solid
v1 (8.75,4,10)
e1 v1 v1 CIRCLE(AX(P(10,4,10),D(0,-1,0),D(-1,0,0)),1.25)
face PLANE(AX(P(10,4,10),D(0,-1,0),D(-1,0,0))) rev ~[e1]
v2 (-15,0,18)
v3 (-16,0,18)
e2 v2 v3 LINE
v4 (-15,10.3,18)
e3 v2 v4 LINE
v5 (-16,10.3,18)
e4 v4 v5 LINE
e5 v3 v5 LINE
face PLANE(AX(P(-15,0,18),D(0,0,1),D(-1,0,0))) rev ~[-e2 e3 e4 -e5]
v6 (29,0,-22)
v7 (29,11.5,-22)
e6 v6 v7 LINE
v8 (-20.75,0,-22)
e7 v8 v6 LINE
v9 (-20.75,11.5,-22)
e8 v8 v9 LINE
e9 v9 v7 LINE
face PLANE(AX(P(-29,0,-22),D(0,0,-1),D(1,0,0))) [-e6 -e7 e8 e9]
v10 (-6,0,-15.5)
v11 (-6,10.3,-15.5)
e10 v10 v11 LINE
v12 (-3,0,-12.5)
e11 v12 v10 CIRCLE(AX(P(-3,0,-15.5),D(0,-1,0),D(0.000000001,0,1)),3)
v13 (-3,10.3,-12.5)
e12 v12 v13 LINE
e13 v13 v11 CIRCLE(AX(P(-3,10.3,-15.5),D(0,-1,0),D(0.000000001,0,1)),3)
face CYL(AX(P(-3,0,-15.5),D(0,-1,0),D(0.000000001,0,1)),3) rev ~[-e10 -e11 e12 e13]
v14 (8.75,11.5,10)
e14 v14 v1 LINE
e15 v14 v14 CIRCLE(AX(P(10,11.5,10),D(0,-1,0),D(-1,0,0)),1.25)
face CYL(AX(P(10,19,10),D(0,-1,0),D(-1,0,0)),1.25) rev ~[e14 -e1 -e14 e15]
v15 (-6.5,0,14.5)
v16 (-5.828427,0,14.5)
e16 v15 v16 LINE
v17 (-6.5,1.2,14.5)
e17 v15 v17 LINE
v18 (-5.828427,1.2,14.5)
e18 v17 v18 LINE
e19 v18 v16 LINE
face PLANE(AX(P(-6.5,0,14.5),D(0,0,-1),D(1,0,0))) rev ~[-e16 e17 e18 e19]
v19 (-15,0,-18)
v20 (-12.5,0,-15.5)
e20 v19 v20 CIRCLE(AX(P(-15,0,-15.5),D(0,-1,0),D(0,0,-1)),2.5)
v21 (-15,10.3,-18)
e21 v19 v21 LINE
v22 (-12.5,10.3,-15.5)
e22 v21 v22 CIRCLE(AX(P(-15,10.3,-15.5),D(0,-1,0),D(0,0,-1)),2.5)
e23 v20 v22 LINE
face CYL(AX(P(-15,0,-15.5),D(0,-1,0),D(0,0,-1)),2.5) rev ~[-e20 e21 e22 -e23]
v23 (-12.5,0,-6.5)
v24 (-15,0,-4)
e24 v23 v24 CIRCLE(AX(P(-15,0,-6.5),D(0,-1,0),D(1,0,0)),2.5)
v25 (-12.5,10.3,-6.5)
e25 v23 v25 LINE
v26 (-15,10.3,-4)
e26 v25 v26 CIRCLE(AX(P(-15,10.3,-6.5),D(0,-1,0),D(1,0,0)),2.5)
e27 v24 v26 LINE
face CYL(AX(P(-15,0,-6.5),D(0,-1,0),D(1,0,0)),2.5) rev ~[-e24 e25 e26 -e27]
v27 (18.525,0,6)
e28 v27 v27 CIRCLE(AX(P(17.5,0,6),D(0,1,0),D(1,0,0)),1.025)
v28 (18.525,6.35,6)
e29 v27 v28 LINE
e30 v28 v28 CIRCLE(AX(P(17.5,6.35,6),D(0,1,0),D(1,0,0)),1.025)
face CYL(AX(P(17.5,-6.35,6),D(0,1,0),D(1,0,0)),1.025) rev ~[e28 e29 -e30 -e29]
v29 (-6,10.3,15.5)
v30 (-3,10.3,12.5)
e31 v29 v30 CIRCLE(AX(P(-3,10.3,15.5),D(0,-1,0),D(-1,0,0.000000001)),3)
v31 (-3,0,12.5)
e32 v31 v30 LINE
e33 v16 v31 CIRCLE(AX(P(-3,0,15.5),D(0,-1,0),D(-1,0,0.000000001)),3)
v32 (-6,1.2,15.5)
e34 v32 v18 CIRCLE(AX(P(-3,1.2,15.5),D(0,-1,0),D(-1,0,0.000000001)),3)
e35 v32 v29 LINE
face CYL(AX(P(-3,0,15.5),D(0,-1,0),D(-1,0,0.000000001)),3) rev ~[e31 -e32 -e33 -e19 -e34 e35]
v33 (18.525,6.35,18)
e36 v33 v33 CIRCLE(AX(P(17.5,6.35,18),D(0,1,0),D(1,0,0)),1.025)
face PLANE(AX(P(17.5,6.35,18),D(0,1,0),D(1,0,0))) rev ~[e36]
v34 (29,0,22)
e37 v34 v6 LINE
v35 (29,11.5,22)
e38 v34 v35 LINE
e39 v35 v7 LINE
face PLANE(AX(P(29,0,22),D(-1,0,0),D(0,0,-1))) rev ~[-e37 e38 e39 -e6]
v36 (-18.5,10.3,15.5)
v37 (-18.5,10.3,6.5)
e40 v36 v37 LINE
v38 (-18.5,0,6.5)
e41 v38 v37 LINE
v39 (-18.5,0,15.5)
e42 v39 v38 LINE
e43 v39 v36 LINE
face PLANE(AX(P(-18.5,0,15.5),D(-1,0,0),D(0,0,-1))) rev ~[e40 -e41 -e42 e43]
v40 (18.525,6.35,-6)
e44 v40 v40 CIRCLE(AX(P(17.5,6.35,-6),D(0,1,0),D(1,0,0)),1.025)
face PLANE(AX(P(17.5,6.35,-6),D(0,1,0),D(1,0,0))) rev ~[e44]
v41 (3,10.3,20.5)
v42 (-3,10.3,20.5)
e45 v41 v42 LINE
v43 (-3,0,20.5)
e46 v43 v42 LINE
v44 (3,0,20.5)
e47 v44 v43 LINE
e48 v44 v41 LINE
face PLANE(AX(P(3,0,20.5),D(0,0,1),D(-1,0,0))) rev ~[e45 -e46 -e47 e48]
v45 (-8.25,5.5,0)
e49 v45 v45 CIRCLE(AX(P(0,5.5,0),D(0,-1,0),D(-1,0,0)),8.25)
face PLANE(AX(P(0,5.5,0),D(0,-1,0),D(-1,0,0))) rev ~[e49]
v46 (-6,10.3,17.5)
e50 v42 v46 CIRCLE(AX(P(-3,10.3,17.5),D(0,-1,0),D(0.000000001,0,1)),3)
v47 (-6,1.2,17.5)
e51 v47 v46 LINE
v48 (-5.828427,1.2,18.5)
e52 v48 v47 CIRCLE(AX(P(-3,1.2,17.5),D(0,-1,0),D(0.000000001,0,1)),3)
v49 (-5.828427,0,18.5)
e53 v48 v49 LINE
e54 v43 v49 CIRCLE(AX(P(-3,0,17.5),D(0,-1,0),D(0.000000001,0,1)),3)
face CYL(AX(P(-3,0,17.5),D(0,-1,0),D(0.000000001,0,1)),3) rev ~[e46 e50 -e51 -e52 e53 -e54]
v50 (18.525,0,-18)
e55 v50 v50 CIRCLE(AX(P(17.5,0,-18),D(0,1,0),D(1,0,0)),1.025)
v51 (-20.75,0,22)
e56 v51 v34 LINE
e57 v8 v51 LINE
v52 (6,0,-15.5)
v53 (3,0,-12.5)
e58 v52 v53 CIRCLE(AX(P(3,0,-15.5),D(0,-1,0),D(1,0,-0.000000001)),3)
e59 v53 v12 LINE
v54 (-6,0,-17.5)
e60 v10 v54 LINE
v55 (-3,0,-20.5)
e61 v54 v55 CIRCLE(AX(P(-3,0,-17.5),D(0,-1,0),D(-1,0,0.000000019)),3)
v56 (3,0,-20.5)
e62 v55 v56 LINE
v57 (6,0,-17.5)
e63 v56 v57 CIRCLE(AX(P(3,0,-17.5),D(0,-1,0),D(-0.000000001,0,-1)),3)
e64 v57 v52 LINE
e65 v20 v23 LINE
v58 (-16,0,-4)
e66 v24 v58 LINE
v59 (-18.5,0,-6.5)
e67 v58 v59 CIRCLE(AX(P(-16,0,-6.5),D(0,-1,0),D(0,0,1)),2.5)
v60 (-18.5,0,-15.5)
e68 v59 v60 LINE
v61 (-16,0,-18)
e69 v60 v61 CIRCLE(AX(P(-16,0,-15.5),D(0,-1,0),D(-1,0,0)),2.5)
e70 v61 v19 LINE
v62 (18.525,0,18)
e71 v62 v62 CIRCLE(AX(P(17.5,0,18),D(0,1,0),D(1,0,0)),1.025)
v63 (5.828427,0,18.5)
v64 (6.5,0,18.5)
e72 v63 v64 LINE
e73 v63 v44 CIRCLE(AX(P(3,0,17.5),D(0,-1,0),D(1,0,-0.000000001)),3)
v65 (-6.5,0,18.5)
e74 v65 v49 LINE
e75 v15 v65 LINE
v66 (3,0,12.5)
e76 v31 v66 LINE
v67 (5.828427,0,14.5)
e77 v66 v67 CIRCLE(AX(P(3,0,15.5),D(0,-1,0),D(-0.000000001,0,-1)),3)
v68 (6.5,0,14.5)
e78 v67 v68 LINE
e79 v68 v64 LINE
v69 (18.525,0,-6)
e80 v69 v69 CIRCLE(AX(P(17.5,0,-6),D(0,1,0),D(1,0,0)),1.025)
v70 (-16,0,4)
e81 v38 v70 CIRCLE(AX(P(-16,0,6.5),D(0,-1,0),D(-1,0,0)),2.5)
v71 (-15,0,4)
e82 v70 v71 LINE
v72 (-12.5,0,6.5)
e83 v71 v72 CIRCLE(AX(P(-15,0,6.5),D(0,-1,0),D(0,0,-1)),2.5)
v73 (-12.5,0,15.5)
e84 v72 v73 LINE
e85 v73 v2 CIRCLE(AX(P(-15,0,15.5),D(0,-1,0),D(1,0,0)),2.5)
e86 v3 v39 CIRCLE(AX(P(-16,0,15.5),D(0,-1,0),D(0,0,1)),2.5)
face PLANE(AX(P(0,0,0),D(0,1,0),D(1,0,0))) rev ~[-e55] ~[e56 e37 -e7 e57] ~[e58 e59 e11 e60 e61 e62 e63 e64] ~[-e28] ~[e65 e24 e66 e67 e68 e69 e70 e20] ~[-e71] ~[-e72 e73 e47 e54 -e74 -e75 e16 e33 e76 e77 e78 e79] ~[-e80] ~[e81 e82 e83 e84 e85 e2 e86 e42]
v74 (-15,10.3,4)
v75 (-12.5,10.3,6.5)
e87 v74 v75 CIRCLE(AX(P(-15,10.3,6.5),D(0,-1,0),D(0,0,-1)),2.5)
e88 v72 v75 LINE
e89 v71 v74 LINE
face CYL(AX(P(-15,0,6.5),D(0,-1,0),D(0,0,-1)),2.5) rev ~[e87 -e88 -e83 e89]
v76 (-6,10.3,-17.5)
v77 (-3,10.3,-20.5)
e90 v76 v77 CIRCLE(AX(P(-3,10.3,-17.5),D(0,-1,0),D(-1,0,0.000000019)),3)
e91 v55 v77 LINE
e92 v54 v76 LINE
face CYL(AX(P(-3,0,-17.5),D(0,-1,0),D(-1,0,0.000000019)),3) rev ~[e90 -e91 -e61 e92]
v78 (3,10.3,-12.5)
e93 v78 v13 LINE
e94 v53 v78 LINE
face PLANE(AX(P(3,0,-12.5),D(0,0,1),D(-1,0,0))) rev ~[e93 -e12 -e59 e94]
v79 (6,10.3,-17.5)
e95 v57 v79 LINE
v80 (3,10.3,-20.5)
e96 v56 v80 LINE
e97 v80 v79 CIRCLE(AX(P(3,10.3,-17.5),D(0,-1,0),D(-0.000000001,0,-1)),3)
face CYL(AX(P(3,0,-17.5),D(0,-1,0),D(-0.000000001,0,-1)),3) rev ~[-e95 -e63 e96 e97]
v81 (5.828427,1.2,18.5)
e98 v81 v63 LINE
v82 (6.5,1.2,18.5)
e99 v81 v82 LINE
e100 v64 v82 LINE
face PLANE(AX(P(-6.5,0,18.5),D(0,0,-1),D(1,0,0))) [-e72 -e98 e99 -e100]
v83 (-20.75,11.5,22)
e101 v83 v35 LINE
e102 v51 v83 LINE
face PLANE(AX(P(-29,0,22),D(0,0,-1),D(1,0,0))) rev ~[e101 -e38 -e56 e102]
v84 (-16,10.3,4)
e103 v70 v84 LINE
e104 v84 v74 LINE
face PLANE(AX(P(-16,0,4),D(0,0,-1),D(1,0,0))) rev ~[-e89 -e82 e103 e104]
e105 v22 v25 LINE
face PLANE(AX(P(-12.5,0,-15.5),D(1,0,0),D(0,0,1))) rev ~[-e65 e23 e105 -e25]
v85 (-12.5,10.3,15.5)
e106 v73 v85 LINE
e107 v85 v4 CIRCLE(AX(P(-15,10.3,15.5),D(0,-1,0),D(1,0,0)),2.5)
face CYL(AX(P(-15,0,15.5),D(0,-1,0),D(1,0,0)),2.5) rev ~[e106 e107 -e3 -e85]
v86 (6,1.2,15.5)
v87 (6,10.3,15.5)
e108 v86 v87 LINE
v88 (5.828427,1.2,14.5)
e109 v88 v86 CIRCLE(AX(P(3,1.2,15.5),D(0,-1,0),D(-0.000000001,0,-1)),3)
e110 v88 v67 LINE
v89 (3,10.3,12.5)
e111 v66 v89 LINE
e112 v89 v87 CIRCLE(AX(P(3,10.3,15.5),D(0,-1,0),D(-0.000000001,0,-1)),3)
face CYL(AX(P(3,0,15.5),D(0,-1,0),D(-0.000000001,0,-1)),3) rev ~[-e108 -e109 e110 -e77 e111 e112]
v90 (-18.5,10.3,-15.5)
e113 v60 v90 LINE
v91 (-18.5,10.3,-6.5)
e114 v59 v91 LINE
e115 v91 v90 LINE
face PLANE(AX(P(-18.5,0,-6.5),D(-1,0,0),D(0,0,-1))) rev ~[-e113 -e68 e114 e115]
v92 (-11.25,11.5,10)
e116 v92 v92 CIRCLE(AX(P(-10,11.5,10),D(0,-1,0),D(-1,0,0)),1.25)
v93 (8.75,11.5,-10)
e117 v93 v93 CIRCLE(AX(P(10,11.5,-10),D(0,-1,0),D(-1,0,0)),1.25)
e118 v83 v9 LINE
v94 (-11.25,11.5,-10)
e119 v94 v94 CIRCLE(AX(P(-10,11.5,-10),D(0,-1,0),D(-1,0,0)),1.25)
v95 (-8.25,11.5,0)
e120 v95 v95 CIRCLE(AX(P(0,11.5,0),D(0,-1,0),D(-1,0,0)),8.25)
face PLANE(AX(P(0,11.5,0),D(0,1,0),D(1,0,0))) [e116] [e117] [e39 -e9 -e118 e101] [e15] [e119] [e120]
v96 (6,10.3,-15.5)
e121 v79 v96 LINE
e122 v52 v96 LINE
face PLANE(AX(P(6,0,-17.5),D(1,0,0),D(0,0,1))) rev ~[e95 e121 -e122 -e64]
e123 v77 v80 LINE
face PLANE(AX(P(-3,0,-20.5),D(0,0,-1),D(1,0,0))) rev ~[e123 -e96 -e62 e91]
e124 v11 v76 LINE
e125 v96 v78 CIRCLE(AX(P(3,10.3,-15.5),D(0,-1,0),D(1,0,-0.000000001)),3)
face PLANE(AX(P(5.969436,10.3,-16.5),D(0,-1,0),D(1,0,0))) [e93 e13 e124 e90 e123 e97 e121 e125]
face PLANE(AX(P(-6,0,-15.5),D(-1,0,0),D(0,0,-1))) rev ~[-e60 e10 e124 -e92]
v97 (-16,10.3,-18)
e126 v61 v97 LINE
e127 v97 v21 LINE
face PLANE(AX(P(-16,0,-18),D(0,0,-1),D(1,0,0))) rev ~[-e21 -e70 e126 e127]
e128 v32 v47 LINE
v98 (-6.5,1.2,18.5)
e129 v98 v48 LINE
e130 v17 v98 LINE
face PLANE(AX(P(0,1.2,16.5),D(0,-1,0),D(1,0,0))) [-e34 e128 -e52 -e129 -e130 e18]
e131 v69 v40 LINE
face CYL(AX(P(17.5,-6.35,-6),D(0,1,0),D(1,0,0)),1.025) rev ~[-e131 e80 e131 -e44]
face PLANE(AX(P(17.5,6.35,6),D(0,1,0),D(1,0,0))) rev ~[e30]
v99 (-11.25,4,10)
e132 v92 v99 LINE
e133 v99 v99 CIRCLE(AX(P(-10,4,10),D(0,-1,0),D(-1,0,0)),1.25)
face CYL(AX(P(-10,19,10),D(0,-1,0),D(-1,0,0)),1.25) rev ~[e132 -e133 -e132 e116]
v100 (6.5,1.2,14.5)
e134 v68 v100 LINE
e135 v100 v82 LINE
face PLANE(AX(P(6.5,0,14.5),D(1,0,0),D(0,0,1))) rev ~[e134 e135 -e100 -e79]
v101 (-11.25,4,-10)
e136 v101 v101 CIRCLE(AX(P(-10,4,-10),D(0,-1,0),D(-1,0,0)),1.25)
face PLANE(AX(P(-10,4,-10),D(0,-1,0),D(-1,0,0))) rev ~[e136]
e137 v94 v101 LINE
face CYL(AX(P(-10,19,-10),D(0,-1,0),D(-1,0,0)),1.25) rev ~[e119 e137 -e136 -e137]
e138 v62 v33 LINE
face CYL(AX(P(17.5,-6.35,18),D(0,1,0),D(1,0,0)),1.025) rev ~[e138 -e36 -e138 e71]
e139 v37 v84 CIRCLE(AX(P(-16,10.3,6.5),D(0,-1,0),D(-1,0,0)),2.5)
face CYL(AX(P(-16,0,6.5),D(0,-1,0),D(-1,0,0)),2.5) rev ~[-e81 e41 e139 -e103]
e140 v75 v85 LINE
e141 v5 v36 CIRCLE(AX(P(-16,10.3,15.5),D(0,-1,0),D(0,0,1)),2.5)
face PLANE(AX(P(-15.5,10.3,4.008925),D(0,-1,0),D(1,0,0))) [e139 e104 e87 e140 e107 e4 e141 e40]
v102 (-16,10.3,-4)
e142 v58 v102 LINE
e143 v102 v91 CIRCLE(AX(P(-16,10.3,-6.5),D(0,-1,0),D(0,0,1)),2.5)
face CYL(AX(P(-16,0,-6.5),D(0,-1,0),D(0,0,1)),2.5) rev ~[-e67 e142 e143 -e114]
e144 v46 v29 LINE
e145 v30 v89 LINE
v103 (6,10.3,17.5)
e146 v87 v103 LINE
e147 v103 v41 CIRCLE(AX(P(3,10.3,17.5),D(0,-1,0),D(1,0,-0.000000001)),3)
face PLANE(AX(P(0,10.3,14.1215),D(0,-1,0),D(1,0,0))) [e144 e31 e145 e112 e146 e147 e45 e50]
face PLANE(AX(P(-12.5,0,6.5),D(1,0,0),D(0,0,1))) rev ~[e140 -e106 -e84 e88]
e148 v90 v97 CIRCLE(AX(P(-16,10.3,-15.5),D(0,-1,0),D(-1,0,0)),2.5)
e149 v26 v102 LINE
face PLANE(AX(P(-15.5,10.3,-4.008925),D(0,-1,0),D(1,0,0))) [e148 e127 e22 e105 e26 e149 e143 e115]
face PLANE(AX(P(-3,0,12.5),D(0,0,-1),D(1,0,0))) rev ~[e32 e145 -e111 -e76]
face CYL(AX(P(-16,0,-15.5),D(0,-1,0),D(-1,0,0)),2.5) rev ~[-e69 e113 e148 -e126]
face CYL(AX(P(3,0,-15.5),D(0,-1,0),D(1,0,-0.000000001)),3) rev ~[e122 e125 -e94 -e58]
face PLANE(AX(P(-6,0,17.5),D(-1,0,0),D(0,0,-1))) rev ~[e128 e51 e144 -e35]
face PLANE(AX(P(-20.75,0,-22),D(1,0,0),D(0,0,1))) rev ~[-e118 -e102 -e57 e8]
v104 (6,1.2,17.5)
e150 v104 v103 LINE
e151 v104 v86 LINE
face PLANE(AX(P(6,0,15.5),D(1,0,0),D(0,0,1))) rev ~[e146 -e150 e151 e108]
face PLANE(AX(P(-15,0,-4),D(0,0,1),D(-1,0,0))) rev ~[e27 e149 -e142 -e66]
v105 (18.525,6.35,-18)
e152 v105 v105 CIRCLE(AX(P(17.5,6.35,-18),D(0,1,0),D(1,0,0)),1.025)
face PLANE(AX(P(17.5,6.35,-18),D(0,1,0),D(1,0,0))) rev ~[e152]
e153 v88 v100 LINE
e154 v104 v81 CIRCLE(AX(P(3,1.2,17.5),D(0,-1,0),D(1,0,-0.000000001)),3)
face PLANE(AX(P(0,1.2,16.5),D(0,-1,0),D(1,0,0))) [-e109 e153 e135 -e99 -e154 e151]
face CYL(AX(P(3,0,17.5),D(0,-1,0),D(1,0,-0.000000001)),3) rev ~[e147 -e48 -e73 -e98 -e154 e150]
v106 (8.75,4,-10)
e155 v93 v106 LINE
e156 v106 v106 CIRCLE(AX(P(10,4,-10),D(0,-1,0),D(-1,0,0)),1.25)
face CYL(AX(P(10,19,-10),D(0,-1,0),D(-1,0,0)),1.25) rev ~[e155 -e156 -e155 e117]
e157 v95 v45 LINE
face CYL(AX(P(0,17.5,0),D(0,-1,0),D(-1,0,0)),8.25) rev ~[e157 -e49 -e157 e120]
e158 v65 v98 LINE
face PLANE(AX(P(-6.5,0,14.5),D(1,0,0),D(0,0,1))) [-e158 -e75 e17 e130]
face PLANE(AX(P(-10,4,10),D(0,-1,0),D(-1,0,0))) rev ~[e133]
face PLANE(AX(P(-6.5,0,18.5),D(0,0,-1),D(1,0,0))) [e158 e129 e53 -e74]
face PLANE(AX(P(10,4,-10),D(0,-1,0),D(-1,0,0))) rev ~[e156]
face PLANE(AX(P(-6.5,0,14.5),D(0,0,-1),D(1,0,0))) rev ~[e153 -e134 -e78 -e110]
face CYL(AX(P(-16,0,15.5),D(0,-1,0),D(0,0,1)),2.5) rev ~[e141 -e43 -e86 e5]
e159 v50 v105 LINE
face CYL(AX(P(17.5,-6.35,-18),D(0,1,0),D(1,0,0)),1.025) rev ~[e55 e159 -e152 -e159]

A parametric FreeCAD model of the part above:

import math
import FreeCAD as App
import Part
import Sketcher

V = App.Vector

doc = App.newDocument("Part")
params = doc.addObject("Spreadsheet::Sheet", "Params")
for row, (alias, value) in enumerate([
    ("sketch1_width", "58 mm"),
    ("sketch1_height", "44 mm"),
    ("pad1_length", "11.5 mm"),
    ("sketch2_diameter", "16.5 mm"),
    ("hole_diameter", "16.5 mm"),
    ("hole_depth", "6 mm"),
    ("sketch3_diameter", "2.5 mm"),
    ("hole2_diameter", "2.5 mm"),
    ("hole2_depth", "7.5 mm"),
    ("sketch4_radius", "3 mm"),
    ("sketch4_width", "6 mm"),
    ("sketch4_height", "2 mm"),
    ("pocket1_length", "10.3 mm"),
    ("sketch5_radius", "2.5 mm"),
    ("sketch5_width", "1 mm"),
    ("sketch5_height", "9 mm"),
    ("pocket2_length", "10.3 mm"),
    ("sketch6_height", "44 mm"),
    ("sketch6_width", "8.25 mm"),
    ("sketch7_diameter", "2.05 mm"),
    ("hole3_diameter", "2.05 mm"),
    ("hole3_depth", "6.35 mm"),
    ("sketch8_width", "13 mm"),
    ("sketch8_height", "4 mm"),
    ("pocket4_length", "1.2 mm"),
], start=1):
    params.set(f"A{row}", alias)
    params.set(f"B{row}", "=" + value)
    params.setAlias(f"B{row}", alias)

body = doc.addObject("PartDesign::Body", "Body")

# Sketch on XZ plane
sketch1 = body.newObject("Sketcher::SketchObject", "Sketch")
sketch1.AttachmentSupport = (doc.getObject("XZ_Plane"), [""])
sketch1.MapMode = "FlatFace"
sketch1.addGeometry([
    Part.LineSegment(V(-29, -22, 0), V(-29, 22, 0)),
    Part.LineSegment(V(-29, 22, 0), V(29, 22, 0)),
    Part.LineSegment(V(29, 22, 0), V(29, -22, 0)),
    Part.LineSegment(V(29, -22, 0), V(-29, -22, 0)),
], False)
sketch1.addConstraint([
    Sketcher.Constraint("Coincident", 0, 2, 1, 1),
    Sketcher.Constraint("Coincident", 1, 2, 2, 1),
    Sketcher.Constraint("Coincident", 2, 2, 3, 1),
    Sketcher.Constraint("Coincident", 3, 2, 0, 1),
    Sketcher.Constraint("Vertical", 0),
    Sketcher.Constraint("Horizontal", 1),
    Sketcher.Constraint("Vertical", 2),
    Sketcher.Constraint("Horizontal", 3),
    Sketcher.Constraint("Symmetric", 0, 2, 2, 2, -1, 1),
    Sketcher.Constraint("DistanceX", 1, 1, 1, 2, 58.0),
    Sketcher.Constraint("DistanceY", 0, 1, 0, 2, 44.0),
])
sketch1.setExpression("Constraints[9]", "Params.sketch1_width")
sketch1.setExpression("Constraints[10]", "Params.sketch1_height")
pad1 = body.newObject("PartDesign::Pad", "Pad")
pad1.Profile = sketch1
pad1.setExpression("Length", "Params.pad1_length")
pad1.Reversed = True

# Sketch on XZ plane
sketch2 = body.newObject("Sketcher::SketchObject", "Sketch001")
sketch2.AttachmentSupport = (doc.getObject("XZ_Plane"), [""])
sketch2.MapMode = "FlatFace"
sketch2.AttachmentOffset = App.Placement(V(0, 0, -11.5), App.Rotation())
sketch2.addGeometry(Part.Circle(V(0, 0, 0), V(0, 0, 1), 8), False)
sketch2.addConstraint([
    Sketcher.Constraint("Coincident", 0, 3, -1, 1),
    Sketcher.Constraint("Diameter", 0, 16.5),
])
sketch2.setExpression("Constraints[1]", "Params.sketch2_diameter")
doc.recompute()
hole = body.newObject("PartDesign::Hole", "Hole")
hole.Profile = sketch2
hole.ThreadType = "None"
hole.setExpression("Diameter", "Params.hole_diameter")
hole.DepthType = "Dimension"
hole.setExpression("Depth", "Params.hole_depth")
hole.DrillPoint = "Flat"
hole.Reversed = True

# Sketch on XZ plane
sketch3 = body.newObject("Sketcher::SketchObject", "Sketch002")
sketch3.AttachmentSupport = (doc.getObject("XZ_Plane"), [""])
sketch3.MapMode = "FlatFace"
sketch3.AttachmentOffset = App.Placement(V(0, 0, -11.5), App.Rotation())
sketch3.addGeometry([
    Part.Circle(V(-10, -10, 0), V(0, 0, 1), 1.2),
    Part.Circle(V(10, -10, 0), V(0, 0, 1), 1.2),
    Part.Circle(V(-10, 10, 0), V(0, 0, 1), 1.2),
    Part.Circle(V(10, 10, 0), V(0, 0, 1), 1.2),
], False)
sketch3.addConstraint([
    Sketcher.Constraint("Equal", 0, 1),
    Sketcher.Constraint("Equal", 1, 2),
    Sketcher.Constraint("Equal", 2, 3),
    Sketcher.Constraint("Symmetric", 1, 3, 2, 3, -1, 1),
    Sketcher.Constraint("Symmetric", 0, 3, 3, 3, -1, 1),
    Sketcher.Constraint("Symmetric", 0, 3, 1, 3, -2),
    Sketcher.Constraint("Diameter", 0, 2.5),
    Sketcher.Constraint("DistanceX", 0, 3, -1, 1, 10.0),
    Sketcher.Constraint("DistanceY", 0, 3, -1, 1, 10.0),
])
sketch3.setExpression("Constraints[6]", "Params.sketch3_diameter")
doc.recompute()
hole2 = body.newObject("PartDesign::Hole", "Hole001")
hole2.Profile = sketch3
hole2.ThreadType = "None"
hole2.setExpression("Diameter", "Params.hole2_diameter")
hole2.DepthType = "Dimension"
hole2.setExpression("Depth", "Params.hole2_depth")
hole2.DrillPoint = "Flat"
hole2.Reversed = True

# Sketch on XZ plane
sketch4 = body.newObject("Sketcher::SketchObject", "Sketch003")
sketch4.AttachmentSupport = (doc.getObject("XZ_Plane"), [""])
sketch4.MapMode = "FlatFace"
sketch4.addGeometry([
    Part.ArcOfCircle(Part.Circle(V(-3, 15.5, 0), V(0, 0, 1), 3), math.radians(180), math.radians(270)),  # 0
    Part.LineSegment(V(-3, 12.5, 0), V(3, 12.5, 0)),  # 1
    Part.ArcOfCircle(Part.Circle(V(3, 15.5, 0), V(0, 0, 1), 3), math.radians(-90), math.radians(0)),  # 2
    Part.LineSegment(V(6, 15.5, 0), V(6, 17.5, 0)),  # 3
    Part.ArcOfCircle(Part.Circle(V(3, 17.5, 0), V(0, 0, 1), 3), math.radians(0), math.radians(90)),  # 4
    Part.LineSegment(V(3, 20.5, 0), V(-3, 20.5, 0)),  # 5
    Part.ArcOfCircle(Part.Circle(V(-3, 17.5, 0), V(0, 0, 1), 3), math.radians(90), math.radians(180)),  # 6
    Part.LineSegment(V(-6, 17.5, 0), V(-6, 15.5, 0)),  # 7
    Part.ArcOfCircle(Part.Circle(V(-3, -15.5, 0), V(0, 0, 1), 3), math.radians(90), math.radians(180)),  # 8
    Part.LineSegment(V(-6, -15.5, 0), V(-6, -17.5, 0)),  # 9
    Part.ArcOfCircle(Part.Circle(V(-3, -17.5, 0), V(0, 0, 1), 3), math.radians(180), math.radians(270)),  # 10
    Part.LineSegment(V(-3, -20.5, 0), V(3, -20.5, 0)),  # 11
    Part.ArcOfCircle(Part.Circle(V(3, -17.5, 0), V(0, 0, 1), 3), math.radians(-90), math.radians(0)),  # 12
    Part.LineSegment(V(6, -17.5, 0), V(6, -15.5, 0)),  # 13
    Part.ArcOfCircle(Part.Circle(V(3, -15.5, 0), V(0, 0, 1), 3), math.radians(0), math.radians(90)),  # 14
    Part.LineSegment(V(3, -12.5, 0), V(-3, -12.5, 0)),  # 15
], False)
sketch4.addConstraint([
    Sketcher.Constraint("Tangent", 0, 2, 1, 1),
    Sketcher.Constraint("Tangent", 1, 2, 2, 1),
    Sketcher.Constraint("Tangent", 2, 2, 3, 1),
    Sketcher.Constraint("Tangent", 3, 2, 4, 1),
    Sketcher.Constraint("Tangent", 4, 2, 5, 1),
    Sketcher.Constraint("Tangent", 5, 2, 6, 1),
    Sketcher.Constraint("Tangent", 6, 2, 7, 1),
    Sketcher.Constraint("Tangent", 7, 2, 0, 1),
    Sketcher.Constraint("Tangent", 8, 2, 9, 1),
    Sketcher.Constraint("Tangent", 9, 2, 10, 1),
    Sketcher.Constraint("Tangent", 10, 2, 11, 1),
    Sketcher.Constraint("Tangent", 11, 2, 12, 1),
    Sketcher.Constraint("Tangent", 12, 2, 13, 1),
    Sketcher.Constraint("Tangent", 13, 2, 14, 1),
    Sketcher.Constraint("Tangent", 14, 2, 15, 1),
    Sketcher.Constraint("Tangent", 15, 2, 8, 1),
    Sketcher.Constraint("Horizontal", 1),
    Sketcher.Constraint("Vertical", 3),
    Sketcher.Constraint("Horizontal", 5),
    Sketcher.Constraint("Vertical", 7),
    Sketcher.Constraint("Vertical", 9),
    Sketcher.Constraint("Horizontal", 11),
    Sketcher.Constraint("Vertical", 13),
    Sketcher.Constraint("Horizontal", 15),
    Sketcher.Constraint("Equal", 0, 2),
    Sketcher.Constraint("Equal", 2, 4),
    Sketcher.Constraint("Equal", 4, 6),
    Sketcher.Constraint("Equal", 6, 8),
    Sketcher.Constraint("Equal", 8, 10),
    Sketcher.Constraint("Equal", 10, 12),
    Sketcher.Constraint("Equal", 12, 14),
    Sketcher.Constraint("Symmetric", 2, 3, 8, 3, -1, 1),
    Sketcher.Constraint("Symmetric", 6, 3, 12, 3, -1, 1),
    Sketcher.Constraint("Vertical", 6, 3, 8, 3),
    Sketcher.Constraint("Radius", 0, 3.0),
    Sketcher.Constraint("DistanceX", 1, 1, 1, 2, 6.0),
    Sketcher.Constraint("DistanceY", 3, 1, 3, 2, 2.0),
    Sketcher.Constraint("DistanceY", 8, 3, 0, 3, 31.0),
])
sketch4.setExpression("Constraints[34]", "Params.sketch4_radius")
sketch4.setExpression("Constraints[35]", "Params.sketch4_width")
sketch4.setExpression("Constraints[36]", "Params.sketch4_height")
pocket1 = body.newObject("PartDesign::Pocket", "Pocket")
pocket1.Profile = sketch4
pocket1.setExpression("Length", "Params.pocket1_length")

# Sketch on XZ plane
sketch5 = body.newObject("Sketcher::SketchObject", "Sketch004")
sketch5.AttachmentSupport = (doc.getObject("XZ_Plane"), [""])
sketch5.MapMode = "FlatFace"
sketch5.addGeometry([
    Part.ArcOfCircle(Part.Circle(V(-16, 15.5, 0), V(0, 0, 1), 2.5), math.radians(90), math.radians(180)),  # 0
    Part.LineSegment(V(-18.5, 15.5, 0), V(-18.5, 6.5, 0)),  # 1
    Part.ArcOfCircle(Part.Circle(V(-16, 6.5, 0), V(0, 0, 1), 2.5), math.radians(180), math.radians(270)),  # 2
    Part.LineSegment(V(-16, 4, 0), V(-15, 4, 0)),  # 3
    Part.ArcOfCircle(Part.Circle(V(-15, 6.5, 0), V(0, 0, 1), 2.5), math.radians(-90), math.radians(0)),  # 4
    Part.LineSegment(V(-12.5, 6.5, 0), V(-12.5, 15.5, 0)),  # 5
    Part.ArcOfCircle(Part.Circle(V(-15, 15.5, 0), V(0, 0, 1), 2.5), math.radians(0), math.radians(90)),  # 6
    Part.LineSegment(V(-15, 18, 0), V(-16, 18, 0)),  # 7
    Part.ArcOfCircle(Part.Circle(V(-15, -15.5, 0), V(0, 0, 1), 2.5), math.radians(-90), math.radians(0)),  # 8
    Part.LineSegment(V(-12.5, -15.5, 0), V(-12.5, -6.5, 0)),  # 9
    Part.ArcOfCircle(Part.Circle(V(-15, -6.5, 0), V(0, 0, 1), 2.5), math.radians(0), math.radians(90)),  # 10
    Part.LineSegment(V(-15, -4, 0), V(-16, -4, 0)),  # 11
    Part.ArcOfCircle(Part.Circle(V(-16, -6.5, 0), V(0, 0, 1), 2.5), math.radians(90), math.radians(180)),  # 12
    Part.LineSegment(V(-18.5, -6.5, 0), V(-18.5, -15.5, 0)),  # 13
    Part.ArcOfCircle(Part.Circle(V(-16, -15.5, 0), V(0, 0, 1), 2.5), math.radians(180), math.radians(270)),  # 14
    Part.LineSegment(V(-16, -18, 0), V(-15, -18, 0)),  # 15
], False)
sketch5.addConstraint([
    Sketcher.Constraint("Tangent", 0, 2, 1, 1),
    Sketcher.Constraint("Tangent", 1, 2, 2, 1),
    Sketcher.Constraint("Tangent", 2, 2, 3, 1),
    Sketcher.Constraint("Tangent", 3, 2, 4, 1),
    Sketcher.Constraint("Tangent", 4, 2, 5, 1),
    Sketcher.Constraint("Tangent", 5, 2, 6, 1),
    Sketcher.Constraint("Tangent", 6, 2, 7, 1),
    Sketcher.Constraint("Tangent", 7, 2, 0, 1),
    Sketcher.Constraint("Tangent", 8, 2, 9, 1),
    Sketcher.Constraint("Tangent", 9, 2, 10, 1),
    Sketcher.Constraint("Tangent", 10, 2, 11, 1),
    Sketcher.Constraint("Tangent", 11, 2, 12, 1),
    Sketcher.Constraint("Tangent", 12, 2, 13, 1),
    Sketcher.Constraint("Tangent", 13, 2, 14, 1),
    Sketcher.Constraint("Tangent", 14, 2, 15, 1),
    Sketcher.Constraint("Tangent", 15, 2, 8, 1),
    Sketcher.Constraint("Vertical", 1),
    Sketcher.Constraint("Horizontal", 3),
    Sketcher.Constraint("Vertical", 5),
    Sketcher.Constraint("Horizontal", 7),
    Sketcher.Constraint("Vertical", 9),
    Sketcher.Constraint("Horizontal", 11),
    Sketcher.Constraint("Vertical", 13),
    Sketcher.Constraint("Horizontal", 15),
    Sketcher.Constraint("Equal", 0, 2),
    Sketcher.Constraint("Equal", 2, 4),
    Sketcher.Constraint("Equal", 4, 6),
    Sketcher.Constraint("Equal", 6, 8),
    Sketcher.Constraint("Equal", 8, 10),
    Sketcher.Constraint("Equal", 10, 12),
    Sketcher.Constraint("Equal", 12, 14),
    Sketcher.Constraint("Symmetric", 6, 3, 8, 3, -1),
    Sketcher.Constraint("Symmetric", 2, 3, 12, 3, -1),
    Sketcher.Constraint("Radius", 0, 2.5),
    Sketcher.Constraint("DistanceX", 3, 1, 3, 2, 1.0),
    Sketcher.Constraint("DistanceY", 1, 2, 1, 1, 9.0),
    Sketcher.Constraint("DistanceX", 0, 3, -1, 1, 16.0),
    Sketcher.Constraint("DistanceY", -1, 1, 2, 2, 4.0),
])
sketch5.setExpression("Constraints[33]", "Params.sketch5_radius")
sketch5.setExpression("Constraints[34]", "Params.sketch5_width")
sketch5.setExpression("Constraints[35]", "Params.sketch5_height")
pocket2 = body.newObject("PartDesign::Pocket", "Pocket001")
pocket2.Profile = sketch5
pocket2.setExpression("Length", "Params.pocket2_length")

# Sketch on XZ plane
sketch6 = body.newObject("Sketcher::SketchObject", "Sketch005")
sketch6.AttachmentSupport = (doc.getObject("XZ_Plane"), [""])
sketch6.MapMode = "FlatFace"
sketch6.addGeometry([
    Part.LineSegment(V(-21, 22, 0), V(-29, 22, 0)),
    Part.LineSegment(V(-29, 22, 0), V(-29, -22, 0)),
    Part.LineSegment(V(-29, -22, 0), V(-21, -22, 0)),
    Part.LineSegment(V(-21, -22, 0), V(-21, 22, 0)),
], False)
sketch6.addConstraint([
    Sketcher.Constraint("Coincident", 0, 2, 1, 1),
    Sketcher.Constraint("Coincident", 1, 2, 2, 1),
    Sketcher.Constraint("Coincident", 2, 2, 3, 1),
    Sketcher.Constraint("Coincident", 3, 2, 0, 1),
    Sketcher.Constraint("Horizontal", 0),
    Sketcher.Constraint("Vertical", 1),
    Sketcher.Constraint("Horizontal", 2),
    Sketcher.Constraint("Vertical", 3),
    Sketcher.Constraint("DistanceY", 1, 2, 1, 1, 44.0),
    Sketcher.Constraint("DistanceX", 0, 2, -1, 1, 29.0),
    Sketcher.Constraint("DistanceY", -1, 1, 0, 2, 22.0),
    Sketcher.Constraint("DistanceX", 0, 2, 0, 1, 8.25),
])
sketch6.setExpression("Constraints[8]", "Params.sketch6_height")
sketch6.setExpression("Constraints[11]", "Params.sketch6_width")
pocket3 = body.newObject("PartDesign::Pocket", "Pocket002")
pocket3.Profile = sketch6
pocket3.Type = "ThroughAll"

# Sketch on XZ plane
sketch7 = body.newObject("Sketcher::SketchObject", "Sketch006")
sketch7.AttachmentSupport = (doc.getObject("XZ_Plane"), [""])
sketch7.MapMode = "FlatFace"
sketch7.addGeometry([
    Part.Circle(V(17.5, -6, 0), V(0, 0, 1), 1),
    Part.Circle(V(17.5, 6, 0), V(0, 0, 1), 1),
    Part.Circle(V(17.5, 18, 0), V(0, 0, 1), 1),
    Part.Circle(V(17.5, -18, 0), V(0, 0, 1), 1),
], False)
sketch7.addConstraint([
    Sketcher.Constraint("Equal", 0, 1),
    Sketcher.Constraint("Equal", 1, 2),
    Sketcher.Constraint("Equal", 2, 3),
    Sketcher.Constraint("Symmetric", 0, 3, 1, 3, -1),
    Sketcher.Constraint("Symmetric", 2, 3, 3, 3, -1),
    Sketcher.Constraint("Vertical", 1, 3, 2, 3),
    Sketcher.Constraint("Diameter", 0, 2.05),
    Sketcher.Constraint("DistanceY", 0, 3, -1, 1, 6.0),
    Sketcher.Constraint("DistanceY", -1, 1, 2, 3, 18.0),
    Sketcher.Constraint("DistanceX", -1, 1, 0, 3, 17.5),
])
sketch7.setExpression("Constraints[6]", "Params.sketch7_diameter")
doc.recompute()
hole3 = body.newObject("PartDesign::Hole", "Hole002")
hole3.Profile = sketch7
hole3.ThreadType = "None"
hole3.setExpression("Diameter", "Params.hole3_diameter")
hole3.DepthType = "Dimension"
hole3.setExpression("Depth", "Params.hole3_depth")
hole3.DrillPoint = "Flat"

# Sketch on XZ plane
sketch8 = body.newObject("Sketcher::SketchObject", "Sketch007")
sketch8.AttachmentSupport = (doc.getObject("XZ_Plane"), [""])
sketch8.MapMode = "FlatFace"
sketch8.addGeometry([
    Part.LineSegment(V(-6.5, 18.5, 0), V(-6.5, 14.5, 0)),
    Part.LineSegment(V(-6.5, 14.5, 0), V(6.5, 14.5, 0)),
    Part.LineSegment(V(6.5, 14.5, 0), V(6.5, 18.5, 0)),
    Part.LineSegment(V(6.5, 18.5, 0), V(-6.5, 18.5, 0)),
], False)
sketch8.addConstraint([
    Sketcher.Constraint("Coincident", 0, 2, 1, 1),
    Sketcher.Constraint("Coincident", 1, 2, 2, 1),
    Sketcher.Constraint("Coincident", 2, 2, 3, 1),
    Sketcher.Constraint("Coincident", 3, 2, 0, 1),
    Sketcher.Constraint("Vertical", 0),
    Sketcher.Constraint("Horizontal", 1),
    Sketcher.Constraint("Vertical", 2),
    Sketcher.Constraint("Horizontal", 3),
    Sketcher.Constraint("DistanceX", 1, 1, 1, 2, 13.0),
    Sketcher.Constraint("DistanceY", 0, 2, 0, 1, 4.0),
    Sketcher.Constraint("DistanceX", 0, 2, -1, 1, 6.5),
    Sketcher.Constraint("DistanceY", -1, 1, 0, 2, 14.5),
])
sketch8.setExpression("Constraints[8]", "Params.sketch8_width")
sketch8.setExpression("Constraints[9]", "Params.sketch8_height")
pocket4 = body.newObject("PartDesign::Pocket", "Pocket003")
pocket4.Profile = sketch8
pocket4.setExpression("Length", "Params.pocket4_length")

doc.recompute()
